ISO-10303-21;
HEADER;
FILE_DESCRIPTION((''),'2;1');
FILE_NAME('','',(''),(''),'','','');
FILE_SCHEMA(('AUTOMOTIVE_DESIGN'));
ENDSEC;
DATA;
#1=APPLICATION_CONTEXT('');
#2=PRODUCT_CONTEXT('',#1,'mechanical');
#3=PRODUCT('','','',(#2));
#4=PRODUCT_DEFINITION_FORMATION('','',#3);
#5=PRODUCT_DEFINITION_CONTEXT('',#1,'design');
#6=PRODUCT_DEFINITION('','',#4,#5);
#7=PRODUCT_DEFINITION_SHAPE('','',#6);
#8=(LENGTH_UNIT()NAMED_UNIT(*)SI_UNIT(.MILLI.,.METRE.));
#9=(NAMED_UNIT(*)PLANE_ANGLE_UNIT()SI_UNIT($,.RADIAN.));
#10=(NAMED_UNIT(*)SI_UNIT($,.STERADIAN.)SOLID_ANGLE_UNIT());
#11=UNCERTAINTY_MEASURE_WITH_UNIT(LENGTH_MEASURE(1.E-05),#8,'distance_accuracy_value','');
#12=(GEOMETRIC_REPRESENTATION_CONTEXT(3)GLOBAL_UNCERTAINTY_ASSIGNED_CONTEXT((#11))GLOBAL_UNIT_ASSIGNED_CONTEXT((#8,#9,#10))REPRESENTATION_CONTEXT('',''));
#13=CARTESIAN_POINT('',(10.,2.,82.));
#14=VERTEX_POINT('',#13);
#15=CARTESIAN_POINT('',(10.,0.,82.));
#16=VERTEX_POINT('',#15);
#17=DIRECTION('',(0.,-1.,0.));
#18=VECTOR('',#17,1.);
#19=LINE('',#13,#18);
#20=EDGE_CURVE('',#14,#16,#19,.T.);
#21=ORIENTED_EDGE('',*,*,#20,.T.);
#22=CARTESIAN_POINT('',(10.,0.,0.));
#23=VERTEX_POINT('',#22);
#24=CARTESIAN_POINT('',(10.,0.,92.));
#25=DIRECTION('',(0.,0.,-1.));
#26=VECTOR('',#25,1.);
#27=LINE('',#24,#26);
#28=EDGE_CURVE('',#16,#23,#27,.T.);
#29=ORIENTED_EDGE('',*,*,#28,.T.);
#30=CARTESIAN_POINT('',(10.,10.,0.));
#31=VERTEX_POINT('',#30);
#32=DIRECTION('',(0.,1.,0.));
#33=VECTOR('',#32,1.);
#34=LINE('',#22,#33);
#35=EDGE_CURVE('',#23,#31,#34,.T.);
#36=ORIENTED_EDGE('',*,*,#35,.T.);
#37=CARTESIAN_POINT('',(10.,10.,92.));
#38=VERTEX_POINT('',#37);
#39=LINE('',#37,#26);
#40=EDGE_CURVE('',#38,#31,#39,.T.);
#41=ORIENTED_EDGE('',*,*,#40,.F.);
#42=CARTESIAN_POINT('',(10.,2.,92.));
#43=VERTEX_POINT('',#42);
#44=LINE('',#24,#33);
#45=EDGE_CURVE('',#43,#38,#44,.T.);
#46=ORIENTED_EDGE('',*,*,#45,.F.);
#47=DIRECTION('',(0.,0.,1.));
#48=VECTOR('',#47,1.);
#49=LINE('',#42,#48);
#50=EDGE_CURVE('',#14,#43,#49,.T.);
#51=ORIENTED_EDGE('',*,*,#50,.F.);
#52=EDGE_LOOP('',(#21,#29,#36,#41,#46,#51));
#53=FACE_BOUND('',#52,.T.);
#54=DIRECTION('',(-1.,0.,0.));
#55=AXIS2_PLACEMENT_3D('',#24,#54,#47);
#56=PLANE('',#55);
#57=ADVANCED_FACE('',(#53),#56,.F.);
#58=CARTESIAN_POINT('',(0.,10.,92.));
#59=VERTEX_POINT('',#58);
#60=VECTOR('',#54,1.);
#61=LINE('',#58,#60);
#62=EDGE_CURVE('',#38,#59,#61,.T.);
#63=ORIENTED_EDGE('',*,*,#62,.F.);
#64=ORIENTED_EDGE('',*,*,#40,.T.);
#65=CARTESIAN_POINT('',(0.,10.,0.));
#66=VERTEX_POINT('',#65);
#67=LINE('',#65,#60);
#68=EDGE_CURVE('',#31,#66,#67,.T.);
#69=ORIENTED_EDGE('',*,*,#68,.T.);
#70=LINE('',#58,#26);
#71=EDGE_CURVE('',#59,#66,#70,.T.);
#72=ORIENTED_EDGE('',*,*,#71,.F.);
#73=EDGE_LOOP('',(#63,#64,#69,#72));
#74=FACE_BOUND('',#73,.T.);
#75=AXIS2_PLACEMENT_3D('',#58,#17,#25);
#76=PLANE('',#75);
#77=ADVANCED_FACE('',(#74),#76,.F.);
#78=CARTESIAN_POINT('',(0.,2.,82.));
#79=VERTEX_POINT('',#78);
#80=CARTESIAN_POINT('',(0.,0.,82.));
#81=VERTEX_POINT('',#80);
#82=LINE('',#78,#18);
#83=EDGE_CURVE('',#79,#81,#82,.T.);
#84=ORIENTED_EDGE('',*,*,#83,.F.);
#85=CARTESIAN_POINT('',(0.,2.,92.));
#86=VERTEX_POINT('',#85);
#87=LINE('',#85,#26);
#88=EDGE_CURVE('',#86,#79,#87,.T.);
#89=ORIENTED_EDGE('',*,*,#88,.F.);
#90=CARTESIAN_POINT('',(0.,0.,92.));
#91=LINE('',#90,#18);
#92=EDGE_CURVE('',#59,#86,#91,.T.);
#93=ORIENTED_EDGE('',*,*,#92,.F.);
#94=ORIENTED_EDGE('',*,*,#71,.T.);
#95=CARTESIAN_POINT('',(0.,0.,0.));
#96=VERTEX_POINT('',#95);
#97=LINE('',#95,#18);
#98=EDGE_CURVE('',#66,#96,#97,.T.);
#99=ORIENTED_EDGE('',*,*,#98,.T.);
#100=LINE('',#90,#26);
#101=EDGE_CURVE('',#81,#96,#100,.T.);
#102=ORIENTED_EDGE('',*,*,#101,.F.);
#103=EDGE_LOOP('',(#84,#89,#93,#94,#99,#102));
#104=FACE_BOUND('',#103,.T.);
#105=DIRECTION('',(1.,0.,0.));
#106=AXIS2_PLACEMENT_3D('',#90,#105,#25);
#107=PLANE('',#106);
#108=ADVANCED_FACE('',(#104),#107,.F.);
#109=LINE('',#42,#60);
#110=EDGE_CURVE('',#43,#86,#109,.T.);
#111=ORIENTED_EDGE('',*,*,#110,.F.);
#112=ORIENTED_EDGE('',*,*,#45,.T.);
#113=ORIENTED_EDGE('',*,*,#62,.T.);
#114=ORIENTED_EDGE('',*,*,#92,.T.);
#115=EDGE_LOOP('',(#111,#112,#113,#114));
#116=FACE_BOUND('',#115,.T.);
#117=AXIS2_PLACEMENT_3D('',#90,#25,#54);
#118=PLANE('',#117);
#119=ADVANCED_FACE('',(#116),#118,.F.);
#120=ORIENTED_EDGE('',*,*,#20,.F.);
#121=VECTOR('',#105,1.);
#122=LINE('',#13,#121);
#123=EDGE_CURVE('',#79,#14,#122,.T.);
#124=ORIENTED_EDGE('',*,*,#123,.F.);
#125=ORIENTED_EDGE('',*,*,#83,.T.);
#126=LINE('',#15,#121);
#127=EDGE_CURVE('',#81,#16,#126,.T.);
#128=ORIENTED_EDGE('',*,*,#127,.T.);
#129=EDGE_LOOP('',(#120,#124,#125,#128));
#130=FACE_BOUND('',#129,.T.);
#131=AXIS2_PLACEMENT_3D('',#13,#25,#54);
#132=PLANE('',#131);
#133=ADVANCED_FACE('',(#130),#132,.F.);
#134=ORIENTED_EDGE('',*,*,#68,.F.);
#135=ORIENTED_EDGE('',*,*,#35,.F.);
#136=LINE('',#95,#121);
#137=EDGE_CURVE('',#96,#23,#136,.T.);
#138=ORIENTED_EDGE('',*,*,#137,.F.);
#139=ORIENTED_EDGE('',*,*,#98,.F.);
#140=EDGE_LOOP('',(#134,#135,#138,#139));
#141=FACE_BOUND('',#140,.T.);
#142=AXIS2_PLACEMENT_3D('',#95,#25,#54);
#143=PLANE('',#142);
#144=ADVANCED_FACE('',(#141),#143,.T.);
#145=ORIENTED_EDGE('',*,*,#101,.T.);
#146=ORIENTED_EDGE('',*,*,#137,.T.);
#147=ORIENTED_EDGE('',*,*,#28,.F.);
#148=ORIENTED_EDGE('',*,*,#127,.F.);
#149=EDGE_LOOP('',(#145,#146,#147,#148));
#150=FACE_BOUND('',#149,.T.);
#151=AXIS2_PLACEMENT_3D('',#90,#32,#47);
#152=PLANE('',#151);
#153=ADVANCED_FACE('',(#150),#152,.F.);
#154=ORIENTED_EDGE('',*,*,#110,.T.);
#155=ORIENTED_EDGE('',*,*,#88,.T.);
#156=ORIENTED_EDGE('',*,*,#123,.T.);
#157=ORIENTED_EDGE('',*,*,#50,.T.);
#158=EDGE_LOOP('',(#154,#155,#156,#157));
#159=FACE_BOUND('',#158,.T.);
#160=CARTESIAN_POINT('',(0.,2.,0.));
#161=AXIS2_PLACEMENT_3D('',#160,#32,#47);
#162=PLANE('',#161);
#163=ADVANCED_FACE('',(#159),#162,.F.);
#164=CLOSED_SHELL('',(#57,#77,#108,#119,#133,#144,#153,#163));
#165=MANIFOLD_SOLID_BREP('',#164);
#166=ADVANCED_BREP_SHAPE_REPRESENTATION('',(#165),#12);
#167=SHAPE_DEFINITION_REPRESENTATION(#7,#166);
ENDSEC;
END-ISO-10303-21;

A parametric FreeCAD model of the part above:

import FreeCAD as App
import Part
import Sketcher
from FreeCAD import Vector
Q = App.Units.Quantity

doc = App.newDocument("Part")
body = doc.addObject("PartDesign::Body", "Body")

# Sketch on XY plane
sketch1 = doc.addObject("Sketcher::SketchObject", "Sketch")
body.addObject(sketch1)
sketch1.AttachmentSupport = (doc.XY_Plane, [""])
sketch1.MapMode = "FlatFace"
sketch1.addGeometry([
    Part.LineSegment(Vector(0, 10, 0), Vector(0, 0, 0)),
    Part.LineSegment(Vector(0, 0, 0), Vector(10, 0, 0)),
    Part.LineSegment(Vector(10, 0, 0), Vector(10, 10, 0)),
    Part.LineSegment(Vector(10, 10, 0), Vector(0, 10, 0)),
], False)
sketch1.addConstraint([
    Sketcher.Constraint("Coincident", 0, 2, 1, 1),
    Sketcher.Constraint("Coincident", 1, 2, 2, 1),
    Sketcher.Constraint("Coincident", 2, 2, 3, 1),
    Sketcher.Constraint("Coincident", 3, 2, 0, 1),
    Sketcher.Constraint("Vertical", 0),
    Sketcher.Constraint("Horizontal", 1),
    Sketcher.Constraint("Vertical", 2),
    Sketcher.Constraint("Horizontal", 3),
    Sketcher.Constraint("Coincident", 0, 2, -1, 1),
    Sketcher.Constraint("Equal", 3, 0),
    Sketcher.Constraint("DistanceX", 1, 1, 1, 2, Q("10 mm")),
])
pad1 = doc.addObject("PartDesign::Pad", "Pad")
body.addObject(pad1)
pad1.Profile = sketch1
pad1.Length = 92

# Sketch on XZ plane
sketch2 = doc.addObject("Sketcher::SketchObject", "Sketch001")
body.addObject(sketch2)
sketch2.AttachmentSupport = (doc.XZ_Plane, [""])
sketch2.MapMode = "FlatFace"
sketch2.addGeometry([
    Part.LineSegment(Vector(0, 92, 0), Vector(0, 82, 0)),
    Part.LineSegment(Vector(0, 82, 0), Vector(10, 82, 0)),
    Part.LineSegment(Vector(10, 82, 0), Vector(10, 92, 0)),
    Part.LineSegment(Vector(10, 92, 0), Vector(0, 92, 0)),
], False)
sketch2.addConstraint([
    Sketcher.Constraint("Coincident", 0, 2, 1, 1),
    Sketcher.Constraint("Coincident", 1, 2, 2, 1),
    Sketcher.Constraint("Coincident", 2, 2, 3, 1),
    Sketcher.Constraint("Coincident", 3, 2, 0, 1),
    Sketcher.Constraint("Vertical", 0),
    Sketcher.Constraint("Horizontal", 1),
    Sketcher.Constraint("Vertical", 2),
    Sketcher.Constraint("Horizontal", 3),
    Sketcher.Constraint("PointOnObject", 0, 2, -2),
    Sketcher.Constraint("Equal", 3, 0),
    Sketcher.Constraint("DistanceX", 1, 1, 1, 2, Q("10 mm")),
    Sketcher.Constraint("DistanceY", -1, 1, 0, 2, Q("82 mm")),
])
pocket1 = doc.addObject("PartDesign::Pocket", "Pocket")
body.addObject(pocket1)
pocket1.Profile = sketch2
pocket1.Length = 2

doc.recompute()
